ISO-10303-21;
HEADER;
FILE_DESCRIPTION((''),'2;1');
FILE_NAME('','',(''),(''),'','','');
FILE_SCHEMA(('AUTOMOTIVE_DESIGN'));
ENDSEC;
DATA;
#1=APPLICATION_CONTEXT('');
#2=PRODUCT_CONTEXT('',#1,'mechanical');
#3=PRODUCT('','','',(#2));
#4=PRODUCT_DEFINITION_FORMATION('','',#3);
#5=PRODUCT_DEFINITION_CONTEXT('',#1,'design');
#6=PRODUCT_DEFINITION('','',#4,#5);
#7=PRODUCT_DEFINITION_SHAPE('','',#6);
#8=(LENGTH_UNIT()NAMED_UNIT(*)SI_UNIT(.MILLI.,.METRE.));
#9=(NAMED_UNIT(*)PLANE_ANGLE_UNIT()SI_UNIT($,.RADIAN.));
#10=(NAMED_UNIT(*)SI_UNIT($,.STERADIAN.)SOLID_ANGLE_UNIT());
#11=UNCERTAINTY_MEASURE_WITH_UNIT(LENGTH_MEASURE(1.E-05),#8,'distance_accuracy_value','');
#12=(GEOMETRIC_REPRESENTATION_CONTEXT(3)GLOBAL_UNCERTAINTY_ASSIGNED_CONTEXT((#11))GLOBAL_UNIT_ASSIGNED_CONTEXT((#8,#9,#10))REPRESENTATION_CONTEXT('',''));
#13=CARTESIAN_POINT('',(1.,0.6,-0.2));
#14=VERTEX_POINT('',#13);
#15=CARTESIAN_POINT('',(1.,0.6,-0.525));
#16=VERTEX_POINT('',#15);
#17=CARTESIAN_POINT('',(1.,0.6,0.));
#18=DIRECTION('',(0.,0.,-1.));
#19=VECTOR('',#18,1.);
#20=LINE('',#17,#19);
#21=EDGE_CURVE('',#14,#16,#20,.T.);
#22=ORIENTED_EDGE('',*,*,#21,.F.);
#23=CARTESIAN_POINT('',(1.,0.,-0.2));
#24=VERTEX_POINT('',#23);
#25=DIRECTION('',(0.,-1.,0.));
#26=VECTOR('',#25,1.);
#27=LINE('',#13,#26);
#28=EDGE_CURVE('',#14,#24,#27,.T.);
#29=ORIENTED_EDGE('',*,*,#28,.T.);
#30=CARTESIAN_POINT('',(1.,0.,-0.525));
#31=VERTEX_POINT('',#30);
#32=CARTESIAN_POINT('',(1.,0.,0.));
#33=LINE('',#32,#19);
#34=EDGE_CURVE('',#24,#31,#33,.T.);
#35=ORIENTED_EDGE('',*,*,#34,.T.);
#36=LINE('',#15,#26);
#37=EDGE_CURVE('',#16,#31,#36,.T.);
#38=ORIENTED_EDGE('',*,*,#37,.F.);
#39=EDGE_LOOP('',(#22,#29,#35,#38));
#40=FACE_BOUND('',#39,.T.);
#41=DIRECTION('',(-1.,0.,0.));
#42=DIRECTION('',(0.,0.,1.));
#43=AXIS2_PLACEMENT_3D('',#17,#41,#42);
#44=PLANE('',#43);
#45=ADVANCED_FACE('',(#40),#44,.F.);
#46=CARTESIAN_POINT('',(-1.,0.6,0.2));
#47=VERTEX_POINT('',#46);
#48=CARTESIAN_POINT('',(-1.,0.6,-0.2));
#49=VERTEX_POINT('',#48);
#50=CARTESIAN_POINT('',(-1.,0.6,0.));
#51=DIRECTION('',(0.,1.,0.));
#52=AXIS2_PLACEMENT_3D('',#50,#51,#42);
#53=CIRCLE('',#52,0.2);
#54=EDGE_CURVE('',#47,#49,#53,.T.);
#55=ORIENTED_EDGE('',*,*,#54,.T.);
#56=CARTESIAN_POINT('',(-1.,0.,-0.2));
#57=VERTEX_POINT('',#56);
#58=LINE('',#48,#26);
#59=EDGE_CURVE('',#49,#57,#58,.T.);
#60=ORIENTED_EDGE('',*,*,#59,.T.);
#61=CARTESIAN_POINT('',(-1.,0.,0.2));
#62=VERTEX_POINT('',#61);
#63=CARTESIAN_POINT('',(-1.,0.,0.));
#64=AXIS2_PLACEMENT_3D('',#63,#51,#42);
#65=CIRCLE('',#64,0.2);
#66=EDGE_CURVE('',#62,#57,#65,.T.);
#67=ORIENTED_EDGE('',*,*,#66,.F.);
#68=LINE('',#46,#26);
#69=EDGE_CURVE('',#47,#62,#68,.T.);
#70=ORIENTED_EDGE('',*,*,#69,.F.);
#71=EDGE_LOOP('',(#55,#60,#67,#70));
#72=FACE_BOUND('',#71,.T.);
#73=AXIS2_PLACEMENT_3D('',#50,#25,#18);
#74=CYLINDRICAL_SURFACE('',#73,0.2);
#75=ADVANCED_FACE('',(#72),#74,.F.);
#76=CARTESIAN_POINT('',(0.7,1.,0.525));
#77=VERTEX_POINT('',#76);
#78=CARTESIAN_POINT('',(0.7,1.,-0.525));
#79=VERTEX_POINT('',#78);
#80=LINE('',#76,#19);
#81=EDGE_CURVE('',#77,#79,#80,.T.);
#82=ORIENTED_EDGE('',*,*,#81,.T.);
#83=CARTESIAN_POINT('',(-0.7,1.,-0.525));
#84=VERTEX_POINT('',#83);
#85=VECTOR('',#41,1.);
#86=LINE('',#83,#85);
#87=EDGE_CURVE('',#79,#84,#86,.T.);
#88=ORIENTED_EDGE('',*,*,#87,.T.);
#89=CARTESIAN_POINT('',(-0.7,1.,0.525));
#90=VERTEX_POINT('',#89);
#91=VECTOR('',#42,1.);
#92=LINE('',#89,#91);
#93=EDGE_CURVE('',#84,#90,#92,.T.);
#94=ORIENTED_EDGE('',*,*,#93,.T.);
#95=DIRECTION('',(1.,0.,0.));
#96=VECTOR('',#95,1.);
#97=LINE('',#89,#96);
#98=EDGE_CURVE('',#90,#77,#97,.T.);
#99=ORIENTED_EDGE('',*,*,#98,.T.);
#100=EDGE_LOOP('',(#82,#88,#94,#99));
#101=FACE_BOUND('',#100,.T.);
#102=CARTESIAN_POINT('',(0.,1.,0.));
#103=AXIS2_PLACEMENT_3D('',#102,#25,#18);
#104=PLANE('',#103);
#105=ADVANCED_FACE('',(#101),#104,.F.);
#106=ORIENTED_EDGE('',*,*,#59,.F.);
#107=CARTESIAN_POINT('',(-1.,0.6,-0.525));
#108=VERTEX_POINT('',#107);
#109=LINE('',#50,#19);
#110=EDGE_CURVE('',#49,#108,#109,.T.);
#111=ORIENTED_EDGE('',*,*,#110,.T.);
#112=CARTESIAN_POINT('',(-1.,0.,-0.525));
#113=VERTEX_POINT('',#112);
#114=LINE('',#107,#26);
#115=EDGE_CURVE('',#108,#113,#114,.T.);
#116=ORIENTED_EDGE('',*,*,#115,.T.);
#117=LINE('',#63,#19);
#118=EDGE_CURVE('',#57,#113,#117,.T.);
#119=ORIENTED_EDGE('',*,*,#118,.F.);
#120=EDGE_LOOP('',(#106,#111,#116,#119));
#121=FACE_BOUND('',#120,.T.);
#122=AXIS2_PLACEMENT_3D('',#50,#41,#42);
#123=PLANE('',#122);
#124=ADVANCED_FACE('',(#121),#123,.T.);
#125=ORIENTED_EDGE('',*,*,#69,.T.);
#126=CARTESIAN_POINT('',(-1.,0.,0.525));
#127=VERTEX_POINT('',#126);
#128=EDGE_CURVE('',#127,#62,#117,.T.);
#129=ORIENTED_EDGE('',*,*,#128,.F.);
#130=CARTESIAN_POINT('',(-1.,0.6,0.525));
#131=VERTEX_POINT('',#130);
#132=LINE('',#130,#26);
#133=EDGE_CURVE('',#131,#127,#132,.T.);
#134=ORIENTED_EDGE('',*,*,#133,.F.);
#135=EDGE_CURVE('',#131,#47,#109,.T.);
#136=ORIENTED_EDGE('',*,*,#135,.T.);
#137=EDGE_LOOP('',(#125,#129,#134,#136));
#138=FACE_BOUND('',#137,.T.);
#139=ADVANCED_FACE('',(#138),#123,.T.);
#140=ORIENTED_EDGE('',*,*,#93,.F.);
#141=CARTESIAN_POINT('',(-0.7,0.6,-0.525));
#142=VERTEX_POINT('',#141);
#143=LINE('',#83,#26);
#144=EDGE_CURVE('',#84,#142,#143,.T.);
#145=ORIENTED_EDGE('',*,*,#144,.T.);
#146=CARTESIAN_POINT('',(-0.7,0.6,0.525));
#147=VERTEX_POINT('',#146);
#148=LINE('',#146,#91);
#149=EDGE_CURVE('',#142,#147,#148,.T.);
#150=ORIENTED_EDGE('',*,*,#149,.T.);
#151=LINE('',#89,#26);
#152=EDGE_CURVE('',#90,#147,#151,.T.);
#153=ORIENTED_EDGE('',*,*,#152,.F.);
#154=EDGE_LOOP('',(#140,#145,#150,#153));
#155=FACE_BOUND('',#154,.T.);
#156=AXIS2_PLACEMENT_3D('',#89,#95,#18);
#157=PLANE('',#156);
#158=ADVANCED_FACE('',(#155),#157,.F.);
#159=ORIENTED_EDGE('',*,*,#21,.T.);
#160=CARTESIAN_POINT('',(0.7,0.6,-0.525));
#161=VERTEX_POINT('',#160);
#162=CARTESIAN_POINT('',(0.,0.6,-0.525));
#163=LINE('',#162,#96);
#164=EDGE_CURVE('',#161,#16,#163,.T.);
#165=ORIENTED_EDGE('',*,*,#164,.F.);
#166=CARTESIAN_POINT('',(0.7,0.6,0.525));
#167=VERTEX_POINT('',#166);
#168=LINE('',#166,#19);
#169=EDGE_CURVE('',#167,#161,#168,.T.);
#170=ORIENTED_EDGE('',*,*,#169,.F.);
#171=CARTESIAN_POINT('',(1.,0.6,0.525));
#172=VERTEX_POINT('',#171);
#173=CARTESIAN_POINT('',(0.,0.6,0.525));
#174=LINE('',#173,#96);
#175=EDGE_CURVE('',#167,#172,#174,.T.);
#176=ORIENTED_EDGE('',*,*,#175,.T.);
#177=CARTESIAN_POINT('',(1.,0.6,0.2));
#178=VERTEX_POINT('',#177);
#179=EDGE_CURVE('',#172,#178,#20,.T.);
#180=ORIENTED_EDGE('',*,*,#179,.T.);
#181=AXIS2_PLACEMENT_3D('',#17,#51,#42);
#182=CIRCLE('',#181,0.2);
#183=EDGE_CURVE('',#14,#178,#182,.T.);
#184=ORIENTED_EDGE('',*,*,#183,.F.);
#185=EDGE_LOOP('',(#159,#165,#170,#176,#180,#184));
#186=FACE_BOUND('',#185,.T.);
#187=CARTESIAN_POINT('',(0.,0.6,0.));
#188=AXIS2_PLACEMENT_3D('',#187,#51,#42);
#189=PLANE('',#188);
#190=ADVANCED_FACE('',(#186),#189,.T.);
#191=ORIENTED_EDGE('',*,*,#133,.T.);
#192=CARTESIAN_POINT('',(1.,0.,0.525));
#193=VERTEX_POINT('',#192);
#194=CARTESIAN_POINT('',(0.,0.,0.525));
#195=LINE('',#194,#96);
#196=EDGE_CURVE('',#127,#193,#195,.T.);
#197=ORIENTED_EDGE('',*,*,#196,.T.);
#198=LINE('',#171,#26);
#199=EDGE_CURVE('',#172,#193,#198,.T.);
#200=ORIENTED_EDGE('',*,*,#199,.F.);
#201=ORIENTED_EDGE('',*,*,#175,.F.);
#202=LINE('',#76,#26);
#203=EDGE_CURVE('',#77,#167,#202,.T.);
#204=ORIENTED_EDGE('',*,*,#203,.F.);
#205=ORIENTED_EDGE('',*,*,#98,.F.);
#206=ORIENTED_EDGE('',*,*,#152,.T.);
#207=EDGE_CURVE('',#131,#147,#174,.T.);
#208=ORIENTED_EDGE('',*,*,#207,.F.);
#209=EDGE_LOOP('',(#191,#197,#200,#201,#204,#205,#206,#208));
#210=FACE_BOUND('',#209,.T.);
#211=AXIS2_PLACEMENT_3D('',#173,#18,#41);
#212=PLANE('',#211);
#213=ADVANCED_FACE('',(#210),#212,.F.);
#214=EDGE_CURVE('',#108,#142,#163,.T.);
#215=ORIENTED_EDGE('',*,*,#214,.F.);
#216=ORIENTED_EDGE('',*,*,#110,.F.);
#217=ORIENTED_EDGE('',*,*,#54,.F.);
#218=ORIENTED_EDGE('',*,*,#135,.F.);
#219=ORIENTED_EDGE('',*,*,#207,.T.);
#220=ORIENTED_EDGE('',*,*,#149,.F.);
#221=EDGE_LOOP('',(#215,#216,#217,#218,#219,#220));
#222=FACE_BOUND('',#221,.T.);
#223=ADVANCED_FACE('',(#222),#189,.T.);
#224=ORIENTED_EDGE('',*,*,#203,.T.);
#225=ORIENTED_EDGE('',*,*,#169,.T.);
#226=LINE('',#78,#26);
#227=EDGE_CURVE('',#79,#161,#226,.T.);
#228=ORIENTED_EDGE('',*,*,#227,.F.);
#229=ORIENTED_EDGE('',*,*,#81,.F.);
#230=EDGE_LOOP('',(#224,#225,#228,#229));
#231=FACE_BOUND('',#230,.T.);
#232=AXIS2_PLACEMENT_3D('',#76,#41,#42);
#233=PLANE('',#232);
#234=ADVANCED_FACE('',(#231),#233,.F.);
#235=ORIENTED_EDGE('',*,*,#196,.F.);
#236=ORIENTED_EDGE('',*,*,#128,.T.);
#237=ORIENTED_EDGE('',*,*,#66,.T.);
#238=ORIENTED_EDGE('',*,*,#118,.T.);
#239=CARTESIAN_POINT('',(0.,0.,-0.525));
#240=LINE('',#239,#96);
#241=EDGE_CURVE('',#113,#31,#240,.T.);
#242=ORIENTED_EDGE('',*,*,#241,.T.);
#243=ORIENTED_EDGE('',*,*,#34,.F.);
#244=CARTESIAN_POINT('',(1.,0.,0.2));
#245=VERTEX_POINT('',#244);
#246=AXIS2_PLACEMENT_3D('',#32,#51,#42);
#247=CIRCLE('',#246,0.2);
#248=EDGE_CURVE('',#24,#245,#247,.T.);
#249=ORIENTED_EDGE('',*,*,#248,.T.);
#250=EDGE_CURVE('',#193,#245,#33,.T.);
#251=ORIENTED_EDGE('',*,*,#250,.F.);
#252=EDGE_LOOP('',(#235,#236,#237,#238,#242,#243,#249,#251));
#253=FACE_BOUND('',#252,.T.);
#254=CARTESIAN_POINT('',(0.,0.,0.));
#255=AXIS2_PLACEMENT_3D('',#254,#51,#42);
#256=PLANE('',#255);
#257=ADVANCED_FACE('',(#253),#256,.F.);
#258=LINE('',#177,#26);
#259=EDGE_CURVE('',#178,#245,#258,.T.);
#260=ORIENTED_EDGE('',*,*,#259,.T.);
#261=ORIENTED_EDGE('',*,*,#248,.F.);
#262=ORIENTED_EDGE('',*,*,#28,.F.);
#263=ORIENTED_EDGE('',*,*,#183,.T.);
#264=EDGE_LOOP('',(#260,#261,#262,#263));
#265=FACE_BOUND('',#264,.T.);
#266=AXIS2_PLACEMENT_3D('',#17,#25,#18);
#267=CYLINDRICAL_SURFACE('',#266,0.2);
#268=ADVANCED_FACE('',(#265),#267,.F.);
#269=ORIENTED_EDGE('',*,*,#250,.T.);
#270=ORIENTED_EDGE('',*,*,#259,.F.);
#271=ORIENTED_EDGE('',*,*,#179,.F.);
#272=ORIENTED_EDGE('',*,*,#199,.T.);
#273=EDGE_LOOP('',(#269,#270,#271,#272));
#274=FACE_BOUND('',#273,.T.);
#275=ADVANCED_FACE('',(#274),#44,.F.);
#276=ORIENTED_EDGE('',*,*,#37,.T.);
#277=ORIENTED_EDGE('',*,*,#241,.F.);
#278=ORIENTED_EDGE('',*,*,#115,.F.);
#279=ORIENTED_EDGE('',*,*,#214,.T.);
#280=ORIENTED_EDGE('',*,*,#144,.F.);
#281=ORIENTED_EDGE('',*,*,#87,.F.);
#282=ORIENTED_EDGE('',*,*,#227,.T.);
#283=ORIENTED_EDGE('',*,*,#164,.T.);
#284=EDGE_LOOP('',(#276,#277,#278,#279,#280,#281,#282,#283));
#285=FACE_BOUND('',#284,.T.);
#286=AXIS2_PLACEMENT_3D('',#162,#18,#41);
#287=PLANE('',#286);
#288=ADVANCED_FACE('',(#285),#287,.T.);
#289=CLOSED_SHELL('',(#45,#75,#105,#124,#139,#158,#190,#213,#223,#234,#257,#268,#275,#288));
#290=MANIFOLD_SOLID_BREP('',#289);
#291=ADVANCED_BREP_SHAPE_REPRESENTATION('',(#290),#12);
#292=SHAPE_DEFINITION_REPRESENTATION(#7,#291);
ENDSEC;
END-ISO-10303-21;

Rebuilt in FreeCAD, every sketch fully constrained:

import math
import FreeCAD as App
import Part
import Sketcher
from FreeCAD import Vector


def add_polygon(sketch, points):
    """Adds a closed chain of lines whose ends are joined by coincident constraints."""
    first, n = sketch.GeometryCount, len(points)
    for a, b in zip(points, points[1:] + points[:1]):
        sketch.addGeometry(Part.LineSegment(App.Vector(*a, 0), App.Vector(*b, 0)), False)
    for i in range(n):
        sketch.addConstraint(Sketcher.Constraint("Coincident", first + i, 2, first + (i + 1) % n, 1))

doc = App.newDocument("Part")
params = doc.addObject("Spreadsheet::Sheet", "Params")
for row, (alias, value) in enumerate([
    ("sketch1_radius", "0.2 mm"),
    ("sketch1_width", "2 mm"),
    ("pad1_length", "0.6 mm"),
    ("sketch2_width", "1.4 mm"),
    ("sketch2_height", "1.05 mm"),
    ("pad2_length", "0.4 mm"),
], start=1):
    params.set(f"A{row}", alias)
    params.set(f"B{row}", "=" + value)
    params.setAlias(f"B{row}", alias)

body = doc.addObject("PartDesign::Body", "Body")

# Sketch on XZ plane
sketch1 = body.newObject("Sketcher::SketchObject", "Sketch")
sketch1.AttachmentSupport = (doc.getObject("XZ_Plane"), [""])
sketch1.MapMode = "FlatFace"
sketch1.addGeometry(Part.LineSegment(Vector(-1, 0.2, 0), Vector(-1, 0.53, 0)), False)
sketch1.addGeometry(Part.LineSegment(Vector(-1, 0.53, 0), Vector(1, 0.53, 0)), False)
sketch1.addGeometry(Part.LineSegment(Vector(1, 0.53, 0), Vector(1, 0.2, 0)), False)
sketch1.addGeometry(Part.ArcOfCircle(Part.Circle(Vector(1, 0, 0), Vector(0, 0, 1), 0.2), math.radians(90), math.radians(270)), False)
sketch1.addGeometry(Part.LineSegment(Vector(1, -0.2, 0), Vector(1, -0.53, 0)), False)
sketch1.addGeometry(Part.LineSegment(Vector(1, -0.53, 0), Vector(-1, -0.53, 0)), False)
sketch1.addGeometry(Part.LineSegment(Vector(-1, -0.53, 0), Vector(-1, -0.2, 0)), False)
sketch1.addGeometry(Part.ArcOfCircle(Part.Circle(Vector(-1, 0, 0), Vector(0, 0, 1), 0.2), math.radians(-90), math.radians(0)), False)
sketch1.addGeometry(Part.ArcOfCircle(Part.Circle(Vector(-1, 0, 0), Vector(0, 0, 1), 0.2), math.radians(0), math.radians(90)), False)
sketch1.addConstraint(Sketcher.Constraint("Coincident", 0, 2, 1, 1))
sketch1.addConstraint(Sketcher.Constraint("Coincident", 1, 2, 2, 1))
sketch1.addConstraint(Sketcher.Constraint("Coincident", 2, 2, 3, 1))
sketch1.addConstraint(Sketcher.Constraint("Coincident", 3, 2, 4, 1))
sketch1.addConstraint(Sketcher.Constraint("Coincident", 4, 2, 5, 1))
sketch1.addConstraint(Sketcher.Constraint("Coincident", 5, 2, 6, 1))
sketch1.addConstraint(Sketcher.Constraint("Coincident", 6, 2, 7, 1))
sketch1.addConstraint(Sketcher.Constraint("Tangent", 7, 2, 8, 1))
sketch1.addConstraint(Sketcher.Constraint("Coincident", 8, 2, 0, 1))
sketch1.addConstraint(Sketcher.Constraint("Vertical", 0))
sketch1.addConstraint(Sketcher.Constraint("Horizontal", 1))
sketch1.addConstraint(Sketcher.Constraint("Vertical", 2))
sketch1.addConstraint(Sketcher.Constraint("Vertical", 4))
sketch1.addConstraint(Sketcher.Constraint("Horizontal", 5))
sketch1.addConstraint(Sketcher.Constraint("Vertical", 6))
sketch1.addConstraint(Sketcher.Constraint("Equal", 3, 7))
sketch1.addConstraint(Sketcher.Constraint("Equal", 7, 8))
sketch1.addConstraint(Sketcher.Constraint("Symmetric", 3, 3, 7, 3, -1, 1))
sketch1.addConstraint(Sketcher.Constraint("Symmetric", 0, 2, 4, 2, -1, 1))
sketch1.addConstraint(Sketcher.Constraint("Symmetric", 3, 2, 6, 2, -2))
sketch1.addConstraint(Sketcher.Constraint("PointOnObject", 7, 2, -1))
sketch1.addConstraint(Sketcher.Constraint("Vertical", 8, 3, 0, 2))
sketch1.addConstraint(Sketcher.Constraint("Vertical", 3, 3, 1, 2))
sketch1.addConstraint(Sketcher.Constraint("Radius", 3, 0.2))
sketch1.addConstraint(Sketcher.Constraint("DistanceX", 1, 1, 1, 2, 2.0))
sketch1.addConstraint(Sketcher.Constraint("DistanceY", 0, 1, 0, 2, 0.325))
sketch1.setExpression("Constraints[23]", "Params.sketch1_radius")
sketch1.setExpression("Constraints[24]", "Params.sketch1_width")
pad1 = body.newObject("PartDesign::Pad", "Pad")
pad1.Profile = sketch1
pad1.setExpression("Length", "Params.pad1_length")
pad1.Reversed = True

# Sketch on XZ plane
sketch2 = body.newObject("Sketcher::SketchObject", "Sketch001")
sketch2.AttachmentSupport = (doc.getObject("XZ_Plane"), [""])
sketch2.MapMode = "FlatFace"
sketch2.AttachmentOffset = App.Placement(Vector(0, 0, -0.6), App.Rotation())
add_polygon(sketch2, [(-0.7, -0.5), (-0.7, 0.5), (0.7, 0.5), (0.7, -0.5)])  # lines 0-3
sketch2.addConstraint(Sketcher.Constraint("Vertical", 0))
sketch2.addConstraint(Sketcher.Constraint("Horizontal", 1))
sketch2.addConstraint(Sketcher.Constraint("Vertical", 2))
sketch2.addConstraint(Sketcher.Constraint("Horizontal", 3))
sketch2.addConstraint(Sketcher.Constraint("Symmetric", 0, 2, 2, 2, -1, 1))
sketch2.addConstraint(Sketcher.Constraint("DistanceX", 1, 1, 1, 2, 1.4))
sketch2.addConstraint(Sketcher.Constraint("DistanceY", 0, 1, 0, 2, 1.05))
sketch2.setExpression("Constraints[9]", "Params.sketch2_width")
sketch2.setExpression("Constraints[10]", "Params.sketch2_height")
pad2 = body.newObject("PartDesign::Pad", "Pad001")
pad2.Profile = sketch2
pad2.setExpression("Length", "Params.pad2_length")
pad2.Reversed = True

doc.recompute()
